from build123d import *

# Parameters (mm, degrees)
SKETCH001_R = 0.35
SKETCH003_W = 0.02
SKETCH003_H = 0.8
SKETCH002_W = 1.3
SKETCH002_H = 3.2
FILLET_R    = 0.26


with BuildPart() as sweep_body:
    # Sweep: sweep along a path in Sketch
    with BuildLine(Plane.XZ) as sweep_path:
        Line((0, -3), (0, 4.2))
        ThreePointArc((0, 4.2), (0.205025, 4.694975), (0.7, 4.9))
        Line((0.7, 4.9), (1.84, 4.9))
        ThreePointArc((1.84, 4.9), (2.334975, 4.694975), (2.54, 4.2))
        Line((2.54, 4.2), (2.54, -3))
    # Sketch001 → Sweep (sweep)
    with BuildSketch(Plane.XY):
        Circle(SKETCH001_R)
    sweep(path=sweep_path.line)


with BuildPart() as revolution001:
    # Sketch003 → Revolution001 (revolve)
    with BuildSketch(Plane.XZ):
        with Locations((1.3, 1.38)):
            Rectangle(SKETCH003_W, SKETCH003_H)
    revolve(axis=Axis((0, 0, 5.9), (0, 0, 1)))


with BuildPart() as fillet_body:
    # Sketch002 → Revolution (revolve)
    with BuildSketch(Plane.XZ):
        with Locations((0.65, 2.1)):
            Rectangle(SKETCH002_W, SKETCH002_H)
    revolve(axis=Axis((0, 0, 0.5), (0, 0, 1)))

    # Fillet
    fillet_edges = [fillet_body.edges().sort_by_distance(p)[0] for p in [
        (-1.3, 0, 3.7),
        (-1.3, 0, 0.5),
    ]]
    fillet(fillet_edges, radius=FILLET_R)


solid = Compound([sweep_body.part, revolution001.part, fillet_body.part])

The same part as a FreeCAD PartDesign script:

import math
import FreeCAD as App
import Part
import Sketcher
from FreeCAD import Vector
Q = App.Units.Quantity


def edges_at(feature, points):
    """Names of the edges that pass closest to the given points."""
    edges = feature.Shape.Edges
    near = lambda p: min(range(len(edges)), key=lambda i: edges[i].distToShape(Part.Vertex(*p))[0])
    return sorted({f"Edge{near(p) + 1}" for p in points})


def add_polygon(sketch, points):
    """Adds a closed chain of lines whose ends are joined by coincident constraints."""
    first, n = sketch.GeometryCount, len(points)
    for a, b in zip(points, points[1:] + points[:1]):
        sketch.addGeometry(Part.LineSegment(App.Vector(*a, 0), App.Vector(*b, 0)), False)
    for i in range(n):
        sketch.addConstraint(Sketcher.Constraint("Coincident", first + i, 2, first + (i + 1) % n, 1))

doc = App.newDocument("Part")
params = doc.addObject("Spreadsheet::Sheet", "Params")
for row, (alias, value) in enumerate([
    ("sketch1_diameter", "0.7 mm"),
    ("sketch2_radius", "0.699999 mm"),
    ("sketch2_height", "7.2 mm"),
    ("sketch2_width", "1.14 mm"),
    ("sketch3_height", "0.8 mm"),
    ("sketch3_width", "0.02 mm"),
    ("revolution_angle", "360 deg"),
    ("sketch4_width", "1.3 mm"),
    ("sketch4_height", "3.2 mm"),
    ("revolution2_angle", "360 deg"),
    ("fillet_radius", "0.26 mm"),
], start=1):
    params.set(f"A{row}", alias)
    params.set(f"B{row}", "=" + value)
    params.setAlias(f"B{row}", alias)

body = doc.addObject("PartDesign::Body", "Body")

sketch1 = body.newObject("Sketcher::SketchObject", "Sketch")
sketch1.AttachmentSupport = (doc.getObject("XY_Plane"), [""])
sketch1.MapMode = "FlatFace"
sketch1.addGeometry(Part.Circle(Vector(0, 0, 0), Vector(0, 0, 1), 0.35), False)
sketch1.addConstraint([
    Sketcher.Constraint("Coincident", 0, 3, -1, 1),
    Sketcher.Constraint("Diameter", 0, Q("0.7 mm")),
])
sketch1.setExpression("Constraints[1]", "Params.sketch1_diameter")

sketch2 = body.newObject("Sketcher::SketchObject", "Sketch001")
sketch2.AttachmentSupport = (doc.getObject("XZ_Plane"), [""])
sketch2.MapMode = "FlatFace"
sketch2.addGeometry([
    Part.LineSegment(Vector(0, -3, 0), Vector(0, 4.2, 0)),
    Part.ArcOfCircle(Part.Circle(Vector(0.7, 4.2, 0), Vector(0, 0, 1), 0.7), math.radians(90), math.radians(180)),
    Part.LineSegment(Vector(0.7, 4.9, 0), Vector(1.8, 4.9, 0)),
    Part.ArcOfCircle(Part.Circle(Vector(1.8, 4.2, 0), Vector(0, 0, 1), 0.7), math.radians(0), math.radians(90)),
    Part.LineSegment(Vector(2.5, 4.2, 0), Vector(2.5, -3, 0)),
], False)
sketch2.addConstraint([
    Sketcher.Constraint("Tangent", 0, 2, 1, 2),
    Sketcher.Constraint("Tangent", 1, 1, 2, 1),
    Sketcher.Constraint("Tangent", 2, 2, 3, 2),
    Sketcher.Constraint("Tangent", 3, 1, 4, 1),
    Sketcher.Constraint("Vertical", 0),
    Sketcher.Constraint("Horizontal", 2),
    Sketcher.Constraint("Vertical", 4),
    Sketcher.Constraint("Equal", 1, 3),
    Sketcher.Constraint("PointOnObject", 0, 1, -2),
    Sketcher.Constraint("Horizontal", 0, 1, 4, 2),
    Sketcher.Constraint("Radius", 1, Q("0.699999 mm")),
    Sketcher.Constraint("DistanceY", 0, 1, 0, 2, Q("7.2 mm")),
    Sketcher.Constraint("DistanceY", 0, 1, -1, 1, Q("3 mm")),
    Sketcher.Constraint("DistanceX", 2, 1, 2, 2, Q("1.14 mm")),
])
sketch2.setExpression("Constraints[10]", "Params.sketch2_radius")
sketch2.setExpression("Constraints[11]", "Params.sketch2_height")
sketch2.setExpression("Constraints[13]", "Params.sketch2_width")
doc.recompute()

additivepipe = body.newObject("PartDesign::AdditivePipe", "AdditivePipe")
additivepipe.Profile = sketch1
additivepipe.Spine = (sketch2, ["Edge1", "Edge2", "Edge3", "Edge4", "Edge5"])
body2 = doc.addObject("PartDesign::Body", "Body001")

sketch3 = body2.newObject("Sketcher::SketchObject", "Sketch002")
sketch3.AttachmentSupport = (doc.getObject("XZ_Plane001"), [""])
sketch3.MapMode = "FlatFace"
add_polygon(sketch3, [(1.29, 1.78), (1.29, 0.98), (1.31, 0.98), (1.31, 1.78)])
sketch3.addConstraint([
    Sketcher.Constraint("Vertical", 0),
    Sketcher.Constraint("Horizontal", 1),
    Sketcher.Constraint("Vertical", 2),
    Sketcher.Constraint("Horizontal", 3),
    Sketcher.Constraint("DistanceY", 0, 2, 0, 1, Q("0.8 mm")),
    Sketcher.Constraint("DistanceX", 1, 1, 1, 2, Q("0.02 mm")),
    Sketcher.Constraint("DistanceX", -1, 1, 0, 2, Q("1.29 mm")),
    Sketcher.Constraint("DistanceY", -1, 1, 0, 2, Q("0.98 mm")),
])
sketch3.setExpression("Constraints[8]", "Params.sketch3_height")
sketch3.setExpression("Constraints[9]", "Params.sketch3_width")
revolution = body2.newObject("PartDesign::Revolution", "Revolution")
revolution.Profile = sketch3
revolution.ReferenceAxis = (sketch3, ["V_Axis"])
revolution.setExpression("Angle", "Params.revolution_angle")
body3 = doc.addObject("PartDesign::Body", "Body002")

sketch4 = body3.newObject("Sketcher::SketchObject", "Sketch003")
sketch4.AttachmentSupport = (doc.getObject("XZ_Plane002"), [""])
sketch4.MapMode = "FlatFace"
add_polygon(sketch4, [(0, 3.7), (0, 0.5), (1.3, 0.5), (1.3, 3.7)])
sketch4.addConstraint([
    Sketcher.Constraint("Vertical", 0),
    Sketcher.Constraint("Horizontal", 1),
    Sketcher.Constraint("Vertical", 2),
    Sketcher.Constraint("Horizontal", 3),
    Sketcher.Constraint("PointOnObject", 0, 2, -2),
    Sketcher.Constraint("DistanceX", 1, 1, 1, 2, Q("1.3 mm")),
    Sketcher.Constraint("DistanceY", 0, 2, 0, 1, Q("3.2 mm")),
    Sketcher.Constraint("DistanceY", -1, 1, 0, 2, Q("0.5 mm")),
])
sketch4.setExpression("Constraints[9]", "Params.sketch4_width")
sketch4.setExpression("Constraints[10]", "Params.sketch4_height")
revolution2 = body3.newObject("PartDesign::Revolution", "Revolution001")
revolution2.Profile = sketch4
revolution2.ReferenceAxis = (sketch4, ["V_Axis"])
revolution2.setExpression("Angle", "Params.revolution2_angle")
doc.recompute()

fillet = body3.newObject("PartDesign::Fillet", "Fillet")
fillet.Base = (revolution2, edges_at(revolution2, [(-1.3, 0, 3.7), (-1.3, 0, 0.5)]))
fillet.setExpression("Radius", "Params.fillet_radius")

doc.recompute()
